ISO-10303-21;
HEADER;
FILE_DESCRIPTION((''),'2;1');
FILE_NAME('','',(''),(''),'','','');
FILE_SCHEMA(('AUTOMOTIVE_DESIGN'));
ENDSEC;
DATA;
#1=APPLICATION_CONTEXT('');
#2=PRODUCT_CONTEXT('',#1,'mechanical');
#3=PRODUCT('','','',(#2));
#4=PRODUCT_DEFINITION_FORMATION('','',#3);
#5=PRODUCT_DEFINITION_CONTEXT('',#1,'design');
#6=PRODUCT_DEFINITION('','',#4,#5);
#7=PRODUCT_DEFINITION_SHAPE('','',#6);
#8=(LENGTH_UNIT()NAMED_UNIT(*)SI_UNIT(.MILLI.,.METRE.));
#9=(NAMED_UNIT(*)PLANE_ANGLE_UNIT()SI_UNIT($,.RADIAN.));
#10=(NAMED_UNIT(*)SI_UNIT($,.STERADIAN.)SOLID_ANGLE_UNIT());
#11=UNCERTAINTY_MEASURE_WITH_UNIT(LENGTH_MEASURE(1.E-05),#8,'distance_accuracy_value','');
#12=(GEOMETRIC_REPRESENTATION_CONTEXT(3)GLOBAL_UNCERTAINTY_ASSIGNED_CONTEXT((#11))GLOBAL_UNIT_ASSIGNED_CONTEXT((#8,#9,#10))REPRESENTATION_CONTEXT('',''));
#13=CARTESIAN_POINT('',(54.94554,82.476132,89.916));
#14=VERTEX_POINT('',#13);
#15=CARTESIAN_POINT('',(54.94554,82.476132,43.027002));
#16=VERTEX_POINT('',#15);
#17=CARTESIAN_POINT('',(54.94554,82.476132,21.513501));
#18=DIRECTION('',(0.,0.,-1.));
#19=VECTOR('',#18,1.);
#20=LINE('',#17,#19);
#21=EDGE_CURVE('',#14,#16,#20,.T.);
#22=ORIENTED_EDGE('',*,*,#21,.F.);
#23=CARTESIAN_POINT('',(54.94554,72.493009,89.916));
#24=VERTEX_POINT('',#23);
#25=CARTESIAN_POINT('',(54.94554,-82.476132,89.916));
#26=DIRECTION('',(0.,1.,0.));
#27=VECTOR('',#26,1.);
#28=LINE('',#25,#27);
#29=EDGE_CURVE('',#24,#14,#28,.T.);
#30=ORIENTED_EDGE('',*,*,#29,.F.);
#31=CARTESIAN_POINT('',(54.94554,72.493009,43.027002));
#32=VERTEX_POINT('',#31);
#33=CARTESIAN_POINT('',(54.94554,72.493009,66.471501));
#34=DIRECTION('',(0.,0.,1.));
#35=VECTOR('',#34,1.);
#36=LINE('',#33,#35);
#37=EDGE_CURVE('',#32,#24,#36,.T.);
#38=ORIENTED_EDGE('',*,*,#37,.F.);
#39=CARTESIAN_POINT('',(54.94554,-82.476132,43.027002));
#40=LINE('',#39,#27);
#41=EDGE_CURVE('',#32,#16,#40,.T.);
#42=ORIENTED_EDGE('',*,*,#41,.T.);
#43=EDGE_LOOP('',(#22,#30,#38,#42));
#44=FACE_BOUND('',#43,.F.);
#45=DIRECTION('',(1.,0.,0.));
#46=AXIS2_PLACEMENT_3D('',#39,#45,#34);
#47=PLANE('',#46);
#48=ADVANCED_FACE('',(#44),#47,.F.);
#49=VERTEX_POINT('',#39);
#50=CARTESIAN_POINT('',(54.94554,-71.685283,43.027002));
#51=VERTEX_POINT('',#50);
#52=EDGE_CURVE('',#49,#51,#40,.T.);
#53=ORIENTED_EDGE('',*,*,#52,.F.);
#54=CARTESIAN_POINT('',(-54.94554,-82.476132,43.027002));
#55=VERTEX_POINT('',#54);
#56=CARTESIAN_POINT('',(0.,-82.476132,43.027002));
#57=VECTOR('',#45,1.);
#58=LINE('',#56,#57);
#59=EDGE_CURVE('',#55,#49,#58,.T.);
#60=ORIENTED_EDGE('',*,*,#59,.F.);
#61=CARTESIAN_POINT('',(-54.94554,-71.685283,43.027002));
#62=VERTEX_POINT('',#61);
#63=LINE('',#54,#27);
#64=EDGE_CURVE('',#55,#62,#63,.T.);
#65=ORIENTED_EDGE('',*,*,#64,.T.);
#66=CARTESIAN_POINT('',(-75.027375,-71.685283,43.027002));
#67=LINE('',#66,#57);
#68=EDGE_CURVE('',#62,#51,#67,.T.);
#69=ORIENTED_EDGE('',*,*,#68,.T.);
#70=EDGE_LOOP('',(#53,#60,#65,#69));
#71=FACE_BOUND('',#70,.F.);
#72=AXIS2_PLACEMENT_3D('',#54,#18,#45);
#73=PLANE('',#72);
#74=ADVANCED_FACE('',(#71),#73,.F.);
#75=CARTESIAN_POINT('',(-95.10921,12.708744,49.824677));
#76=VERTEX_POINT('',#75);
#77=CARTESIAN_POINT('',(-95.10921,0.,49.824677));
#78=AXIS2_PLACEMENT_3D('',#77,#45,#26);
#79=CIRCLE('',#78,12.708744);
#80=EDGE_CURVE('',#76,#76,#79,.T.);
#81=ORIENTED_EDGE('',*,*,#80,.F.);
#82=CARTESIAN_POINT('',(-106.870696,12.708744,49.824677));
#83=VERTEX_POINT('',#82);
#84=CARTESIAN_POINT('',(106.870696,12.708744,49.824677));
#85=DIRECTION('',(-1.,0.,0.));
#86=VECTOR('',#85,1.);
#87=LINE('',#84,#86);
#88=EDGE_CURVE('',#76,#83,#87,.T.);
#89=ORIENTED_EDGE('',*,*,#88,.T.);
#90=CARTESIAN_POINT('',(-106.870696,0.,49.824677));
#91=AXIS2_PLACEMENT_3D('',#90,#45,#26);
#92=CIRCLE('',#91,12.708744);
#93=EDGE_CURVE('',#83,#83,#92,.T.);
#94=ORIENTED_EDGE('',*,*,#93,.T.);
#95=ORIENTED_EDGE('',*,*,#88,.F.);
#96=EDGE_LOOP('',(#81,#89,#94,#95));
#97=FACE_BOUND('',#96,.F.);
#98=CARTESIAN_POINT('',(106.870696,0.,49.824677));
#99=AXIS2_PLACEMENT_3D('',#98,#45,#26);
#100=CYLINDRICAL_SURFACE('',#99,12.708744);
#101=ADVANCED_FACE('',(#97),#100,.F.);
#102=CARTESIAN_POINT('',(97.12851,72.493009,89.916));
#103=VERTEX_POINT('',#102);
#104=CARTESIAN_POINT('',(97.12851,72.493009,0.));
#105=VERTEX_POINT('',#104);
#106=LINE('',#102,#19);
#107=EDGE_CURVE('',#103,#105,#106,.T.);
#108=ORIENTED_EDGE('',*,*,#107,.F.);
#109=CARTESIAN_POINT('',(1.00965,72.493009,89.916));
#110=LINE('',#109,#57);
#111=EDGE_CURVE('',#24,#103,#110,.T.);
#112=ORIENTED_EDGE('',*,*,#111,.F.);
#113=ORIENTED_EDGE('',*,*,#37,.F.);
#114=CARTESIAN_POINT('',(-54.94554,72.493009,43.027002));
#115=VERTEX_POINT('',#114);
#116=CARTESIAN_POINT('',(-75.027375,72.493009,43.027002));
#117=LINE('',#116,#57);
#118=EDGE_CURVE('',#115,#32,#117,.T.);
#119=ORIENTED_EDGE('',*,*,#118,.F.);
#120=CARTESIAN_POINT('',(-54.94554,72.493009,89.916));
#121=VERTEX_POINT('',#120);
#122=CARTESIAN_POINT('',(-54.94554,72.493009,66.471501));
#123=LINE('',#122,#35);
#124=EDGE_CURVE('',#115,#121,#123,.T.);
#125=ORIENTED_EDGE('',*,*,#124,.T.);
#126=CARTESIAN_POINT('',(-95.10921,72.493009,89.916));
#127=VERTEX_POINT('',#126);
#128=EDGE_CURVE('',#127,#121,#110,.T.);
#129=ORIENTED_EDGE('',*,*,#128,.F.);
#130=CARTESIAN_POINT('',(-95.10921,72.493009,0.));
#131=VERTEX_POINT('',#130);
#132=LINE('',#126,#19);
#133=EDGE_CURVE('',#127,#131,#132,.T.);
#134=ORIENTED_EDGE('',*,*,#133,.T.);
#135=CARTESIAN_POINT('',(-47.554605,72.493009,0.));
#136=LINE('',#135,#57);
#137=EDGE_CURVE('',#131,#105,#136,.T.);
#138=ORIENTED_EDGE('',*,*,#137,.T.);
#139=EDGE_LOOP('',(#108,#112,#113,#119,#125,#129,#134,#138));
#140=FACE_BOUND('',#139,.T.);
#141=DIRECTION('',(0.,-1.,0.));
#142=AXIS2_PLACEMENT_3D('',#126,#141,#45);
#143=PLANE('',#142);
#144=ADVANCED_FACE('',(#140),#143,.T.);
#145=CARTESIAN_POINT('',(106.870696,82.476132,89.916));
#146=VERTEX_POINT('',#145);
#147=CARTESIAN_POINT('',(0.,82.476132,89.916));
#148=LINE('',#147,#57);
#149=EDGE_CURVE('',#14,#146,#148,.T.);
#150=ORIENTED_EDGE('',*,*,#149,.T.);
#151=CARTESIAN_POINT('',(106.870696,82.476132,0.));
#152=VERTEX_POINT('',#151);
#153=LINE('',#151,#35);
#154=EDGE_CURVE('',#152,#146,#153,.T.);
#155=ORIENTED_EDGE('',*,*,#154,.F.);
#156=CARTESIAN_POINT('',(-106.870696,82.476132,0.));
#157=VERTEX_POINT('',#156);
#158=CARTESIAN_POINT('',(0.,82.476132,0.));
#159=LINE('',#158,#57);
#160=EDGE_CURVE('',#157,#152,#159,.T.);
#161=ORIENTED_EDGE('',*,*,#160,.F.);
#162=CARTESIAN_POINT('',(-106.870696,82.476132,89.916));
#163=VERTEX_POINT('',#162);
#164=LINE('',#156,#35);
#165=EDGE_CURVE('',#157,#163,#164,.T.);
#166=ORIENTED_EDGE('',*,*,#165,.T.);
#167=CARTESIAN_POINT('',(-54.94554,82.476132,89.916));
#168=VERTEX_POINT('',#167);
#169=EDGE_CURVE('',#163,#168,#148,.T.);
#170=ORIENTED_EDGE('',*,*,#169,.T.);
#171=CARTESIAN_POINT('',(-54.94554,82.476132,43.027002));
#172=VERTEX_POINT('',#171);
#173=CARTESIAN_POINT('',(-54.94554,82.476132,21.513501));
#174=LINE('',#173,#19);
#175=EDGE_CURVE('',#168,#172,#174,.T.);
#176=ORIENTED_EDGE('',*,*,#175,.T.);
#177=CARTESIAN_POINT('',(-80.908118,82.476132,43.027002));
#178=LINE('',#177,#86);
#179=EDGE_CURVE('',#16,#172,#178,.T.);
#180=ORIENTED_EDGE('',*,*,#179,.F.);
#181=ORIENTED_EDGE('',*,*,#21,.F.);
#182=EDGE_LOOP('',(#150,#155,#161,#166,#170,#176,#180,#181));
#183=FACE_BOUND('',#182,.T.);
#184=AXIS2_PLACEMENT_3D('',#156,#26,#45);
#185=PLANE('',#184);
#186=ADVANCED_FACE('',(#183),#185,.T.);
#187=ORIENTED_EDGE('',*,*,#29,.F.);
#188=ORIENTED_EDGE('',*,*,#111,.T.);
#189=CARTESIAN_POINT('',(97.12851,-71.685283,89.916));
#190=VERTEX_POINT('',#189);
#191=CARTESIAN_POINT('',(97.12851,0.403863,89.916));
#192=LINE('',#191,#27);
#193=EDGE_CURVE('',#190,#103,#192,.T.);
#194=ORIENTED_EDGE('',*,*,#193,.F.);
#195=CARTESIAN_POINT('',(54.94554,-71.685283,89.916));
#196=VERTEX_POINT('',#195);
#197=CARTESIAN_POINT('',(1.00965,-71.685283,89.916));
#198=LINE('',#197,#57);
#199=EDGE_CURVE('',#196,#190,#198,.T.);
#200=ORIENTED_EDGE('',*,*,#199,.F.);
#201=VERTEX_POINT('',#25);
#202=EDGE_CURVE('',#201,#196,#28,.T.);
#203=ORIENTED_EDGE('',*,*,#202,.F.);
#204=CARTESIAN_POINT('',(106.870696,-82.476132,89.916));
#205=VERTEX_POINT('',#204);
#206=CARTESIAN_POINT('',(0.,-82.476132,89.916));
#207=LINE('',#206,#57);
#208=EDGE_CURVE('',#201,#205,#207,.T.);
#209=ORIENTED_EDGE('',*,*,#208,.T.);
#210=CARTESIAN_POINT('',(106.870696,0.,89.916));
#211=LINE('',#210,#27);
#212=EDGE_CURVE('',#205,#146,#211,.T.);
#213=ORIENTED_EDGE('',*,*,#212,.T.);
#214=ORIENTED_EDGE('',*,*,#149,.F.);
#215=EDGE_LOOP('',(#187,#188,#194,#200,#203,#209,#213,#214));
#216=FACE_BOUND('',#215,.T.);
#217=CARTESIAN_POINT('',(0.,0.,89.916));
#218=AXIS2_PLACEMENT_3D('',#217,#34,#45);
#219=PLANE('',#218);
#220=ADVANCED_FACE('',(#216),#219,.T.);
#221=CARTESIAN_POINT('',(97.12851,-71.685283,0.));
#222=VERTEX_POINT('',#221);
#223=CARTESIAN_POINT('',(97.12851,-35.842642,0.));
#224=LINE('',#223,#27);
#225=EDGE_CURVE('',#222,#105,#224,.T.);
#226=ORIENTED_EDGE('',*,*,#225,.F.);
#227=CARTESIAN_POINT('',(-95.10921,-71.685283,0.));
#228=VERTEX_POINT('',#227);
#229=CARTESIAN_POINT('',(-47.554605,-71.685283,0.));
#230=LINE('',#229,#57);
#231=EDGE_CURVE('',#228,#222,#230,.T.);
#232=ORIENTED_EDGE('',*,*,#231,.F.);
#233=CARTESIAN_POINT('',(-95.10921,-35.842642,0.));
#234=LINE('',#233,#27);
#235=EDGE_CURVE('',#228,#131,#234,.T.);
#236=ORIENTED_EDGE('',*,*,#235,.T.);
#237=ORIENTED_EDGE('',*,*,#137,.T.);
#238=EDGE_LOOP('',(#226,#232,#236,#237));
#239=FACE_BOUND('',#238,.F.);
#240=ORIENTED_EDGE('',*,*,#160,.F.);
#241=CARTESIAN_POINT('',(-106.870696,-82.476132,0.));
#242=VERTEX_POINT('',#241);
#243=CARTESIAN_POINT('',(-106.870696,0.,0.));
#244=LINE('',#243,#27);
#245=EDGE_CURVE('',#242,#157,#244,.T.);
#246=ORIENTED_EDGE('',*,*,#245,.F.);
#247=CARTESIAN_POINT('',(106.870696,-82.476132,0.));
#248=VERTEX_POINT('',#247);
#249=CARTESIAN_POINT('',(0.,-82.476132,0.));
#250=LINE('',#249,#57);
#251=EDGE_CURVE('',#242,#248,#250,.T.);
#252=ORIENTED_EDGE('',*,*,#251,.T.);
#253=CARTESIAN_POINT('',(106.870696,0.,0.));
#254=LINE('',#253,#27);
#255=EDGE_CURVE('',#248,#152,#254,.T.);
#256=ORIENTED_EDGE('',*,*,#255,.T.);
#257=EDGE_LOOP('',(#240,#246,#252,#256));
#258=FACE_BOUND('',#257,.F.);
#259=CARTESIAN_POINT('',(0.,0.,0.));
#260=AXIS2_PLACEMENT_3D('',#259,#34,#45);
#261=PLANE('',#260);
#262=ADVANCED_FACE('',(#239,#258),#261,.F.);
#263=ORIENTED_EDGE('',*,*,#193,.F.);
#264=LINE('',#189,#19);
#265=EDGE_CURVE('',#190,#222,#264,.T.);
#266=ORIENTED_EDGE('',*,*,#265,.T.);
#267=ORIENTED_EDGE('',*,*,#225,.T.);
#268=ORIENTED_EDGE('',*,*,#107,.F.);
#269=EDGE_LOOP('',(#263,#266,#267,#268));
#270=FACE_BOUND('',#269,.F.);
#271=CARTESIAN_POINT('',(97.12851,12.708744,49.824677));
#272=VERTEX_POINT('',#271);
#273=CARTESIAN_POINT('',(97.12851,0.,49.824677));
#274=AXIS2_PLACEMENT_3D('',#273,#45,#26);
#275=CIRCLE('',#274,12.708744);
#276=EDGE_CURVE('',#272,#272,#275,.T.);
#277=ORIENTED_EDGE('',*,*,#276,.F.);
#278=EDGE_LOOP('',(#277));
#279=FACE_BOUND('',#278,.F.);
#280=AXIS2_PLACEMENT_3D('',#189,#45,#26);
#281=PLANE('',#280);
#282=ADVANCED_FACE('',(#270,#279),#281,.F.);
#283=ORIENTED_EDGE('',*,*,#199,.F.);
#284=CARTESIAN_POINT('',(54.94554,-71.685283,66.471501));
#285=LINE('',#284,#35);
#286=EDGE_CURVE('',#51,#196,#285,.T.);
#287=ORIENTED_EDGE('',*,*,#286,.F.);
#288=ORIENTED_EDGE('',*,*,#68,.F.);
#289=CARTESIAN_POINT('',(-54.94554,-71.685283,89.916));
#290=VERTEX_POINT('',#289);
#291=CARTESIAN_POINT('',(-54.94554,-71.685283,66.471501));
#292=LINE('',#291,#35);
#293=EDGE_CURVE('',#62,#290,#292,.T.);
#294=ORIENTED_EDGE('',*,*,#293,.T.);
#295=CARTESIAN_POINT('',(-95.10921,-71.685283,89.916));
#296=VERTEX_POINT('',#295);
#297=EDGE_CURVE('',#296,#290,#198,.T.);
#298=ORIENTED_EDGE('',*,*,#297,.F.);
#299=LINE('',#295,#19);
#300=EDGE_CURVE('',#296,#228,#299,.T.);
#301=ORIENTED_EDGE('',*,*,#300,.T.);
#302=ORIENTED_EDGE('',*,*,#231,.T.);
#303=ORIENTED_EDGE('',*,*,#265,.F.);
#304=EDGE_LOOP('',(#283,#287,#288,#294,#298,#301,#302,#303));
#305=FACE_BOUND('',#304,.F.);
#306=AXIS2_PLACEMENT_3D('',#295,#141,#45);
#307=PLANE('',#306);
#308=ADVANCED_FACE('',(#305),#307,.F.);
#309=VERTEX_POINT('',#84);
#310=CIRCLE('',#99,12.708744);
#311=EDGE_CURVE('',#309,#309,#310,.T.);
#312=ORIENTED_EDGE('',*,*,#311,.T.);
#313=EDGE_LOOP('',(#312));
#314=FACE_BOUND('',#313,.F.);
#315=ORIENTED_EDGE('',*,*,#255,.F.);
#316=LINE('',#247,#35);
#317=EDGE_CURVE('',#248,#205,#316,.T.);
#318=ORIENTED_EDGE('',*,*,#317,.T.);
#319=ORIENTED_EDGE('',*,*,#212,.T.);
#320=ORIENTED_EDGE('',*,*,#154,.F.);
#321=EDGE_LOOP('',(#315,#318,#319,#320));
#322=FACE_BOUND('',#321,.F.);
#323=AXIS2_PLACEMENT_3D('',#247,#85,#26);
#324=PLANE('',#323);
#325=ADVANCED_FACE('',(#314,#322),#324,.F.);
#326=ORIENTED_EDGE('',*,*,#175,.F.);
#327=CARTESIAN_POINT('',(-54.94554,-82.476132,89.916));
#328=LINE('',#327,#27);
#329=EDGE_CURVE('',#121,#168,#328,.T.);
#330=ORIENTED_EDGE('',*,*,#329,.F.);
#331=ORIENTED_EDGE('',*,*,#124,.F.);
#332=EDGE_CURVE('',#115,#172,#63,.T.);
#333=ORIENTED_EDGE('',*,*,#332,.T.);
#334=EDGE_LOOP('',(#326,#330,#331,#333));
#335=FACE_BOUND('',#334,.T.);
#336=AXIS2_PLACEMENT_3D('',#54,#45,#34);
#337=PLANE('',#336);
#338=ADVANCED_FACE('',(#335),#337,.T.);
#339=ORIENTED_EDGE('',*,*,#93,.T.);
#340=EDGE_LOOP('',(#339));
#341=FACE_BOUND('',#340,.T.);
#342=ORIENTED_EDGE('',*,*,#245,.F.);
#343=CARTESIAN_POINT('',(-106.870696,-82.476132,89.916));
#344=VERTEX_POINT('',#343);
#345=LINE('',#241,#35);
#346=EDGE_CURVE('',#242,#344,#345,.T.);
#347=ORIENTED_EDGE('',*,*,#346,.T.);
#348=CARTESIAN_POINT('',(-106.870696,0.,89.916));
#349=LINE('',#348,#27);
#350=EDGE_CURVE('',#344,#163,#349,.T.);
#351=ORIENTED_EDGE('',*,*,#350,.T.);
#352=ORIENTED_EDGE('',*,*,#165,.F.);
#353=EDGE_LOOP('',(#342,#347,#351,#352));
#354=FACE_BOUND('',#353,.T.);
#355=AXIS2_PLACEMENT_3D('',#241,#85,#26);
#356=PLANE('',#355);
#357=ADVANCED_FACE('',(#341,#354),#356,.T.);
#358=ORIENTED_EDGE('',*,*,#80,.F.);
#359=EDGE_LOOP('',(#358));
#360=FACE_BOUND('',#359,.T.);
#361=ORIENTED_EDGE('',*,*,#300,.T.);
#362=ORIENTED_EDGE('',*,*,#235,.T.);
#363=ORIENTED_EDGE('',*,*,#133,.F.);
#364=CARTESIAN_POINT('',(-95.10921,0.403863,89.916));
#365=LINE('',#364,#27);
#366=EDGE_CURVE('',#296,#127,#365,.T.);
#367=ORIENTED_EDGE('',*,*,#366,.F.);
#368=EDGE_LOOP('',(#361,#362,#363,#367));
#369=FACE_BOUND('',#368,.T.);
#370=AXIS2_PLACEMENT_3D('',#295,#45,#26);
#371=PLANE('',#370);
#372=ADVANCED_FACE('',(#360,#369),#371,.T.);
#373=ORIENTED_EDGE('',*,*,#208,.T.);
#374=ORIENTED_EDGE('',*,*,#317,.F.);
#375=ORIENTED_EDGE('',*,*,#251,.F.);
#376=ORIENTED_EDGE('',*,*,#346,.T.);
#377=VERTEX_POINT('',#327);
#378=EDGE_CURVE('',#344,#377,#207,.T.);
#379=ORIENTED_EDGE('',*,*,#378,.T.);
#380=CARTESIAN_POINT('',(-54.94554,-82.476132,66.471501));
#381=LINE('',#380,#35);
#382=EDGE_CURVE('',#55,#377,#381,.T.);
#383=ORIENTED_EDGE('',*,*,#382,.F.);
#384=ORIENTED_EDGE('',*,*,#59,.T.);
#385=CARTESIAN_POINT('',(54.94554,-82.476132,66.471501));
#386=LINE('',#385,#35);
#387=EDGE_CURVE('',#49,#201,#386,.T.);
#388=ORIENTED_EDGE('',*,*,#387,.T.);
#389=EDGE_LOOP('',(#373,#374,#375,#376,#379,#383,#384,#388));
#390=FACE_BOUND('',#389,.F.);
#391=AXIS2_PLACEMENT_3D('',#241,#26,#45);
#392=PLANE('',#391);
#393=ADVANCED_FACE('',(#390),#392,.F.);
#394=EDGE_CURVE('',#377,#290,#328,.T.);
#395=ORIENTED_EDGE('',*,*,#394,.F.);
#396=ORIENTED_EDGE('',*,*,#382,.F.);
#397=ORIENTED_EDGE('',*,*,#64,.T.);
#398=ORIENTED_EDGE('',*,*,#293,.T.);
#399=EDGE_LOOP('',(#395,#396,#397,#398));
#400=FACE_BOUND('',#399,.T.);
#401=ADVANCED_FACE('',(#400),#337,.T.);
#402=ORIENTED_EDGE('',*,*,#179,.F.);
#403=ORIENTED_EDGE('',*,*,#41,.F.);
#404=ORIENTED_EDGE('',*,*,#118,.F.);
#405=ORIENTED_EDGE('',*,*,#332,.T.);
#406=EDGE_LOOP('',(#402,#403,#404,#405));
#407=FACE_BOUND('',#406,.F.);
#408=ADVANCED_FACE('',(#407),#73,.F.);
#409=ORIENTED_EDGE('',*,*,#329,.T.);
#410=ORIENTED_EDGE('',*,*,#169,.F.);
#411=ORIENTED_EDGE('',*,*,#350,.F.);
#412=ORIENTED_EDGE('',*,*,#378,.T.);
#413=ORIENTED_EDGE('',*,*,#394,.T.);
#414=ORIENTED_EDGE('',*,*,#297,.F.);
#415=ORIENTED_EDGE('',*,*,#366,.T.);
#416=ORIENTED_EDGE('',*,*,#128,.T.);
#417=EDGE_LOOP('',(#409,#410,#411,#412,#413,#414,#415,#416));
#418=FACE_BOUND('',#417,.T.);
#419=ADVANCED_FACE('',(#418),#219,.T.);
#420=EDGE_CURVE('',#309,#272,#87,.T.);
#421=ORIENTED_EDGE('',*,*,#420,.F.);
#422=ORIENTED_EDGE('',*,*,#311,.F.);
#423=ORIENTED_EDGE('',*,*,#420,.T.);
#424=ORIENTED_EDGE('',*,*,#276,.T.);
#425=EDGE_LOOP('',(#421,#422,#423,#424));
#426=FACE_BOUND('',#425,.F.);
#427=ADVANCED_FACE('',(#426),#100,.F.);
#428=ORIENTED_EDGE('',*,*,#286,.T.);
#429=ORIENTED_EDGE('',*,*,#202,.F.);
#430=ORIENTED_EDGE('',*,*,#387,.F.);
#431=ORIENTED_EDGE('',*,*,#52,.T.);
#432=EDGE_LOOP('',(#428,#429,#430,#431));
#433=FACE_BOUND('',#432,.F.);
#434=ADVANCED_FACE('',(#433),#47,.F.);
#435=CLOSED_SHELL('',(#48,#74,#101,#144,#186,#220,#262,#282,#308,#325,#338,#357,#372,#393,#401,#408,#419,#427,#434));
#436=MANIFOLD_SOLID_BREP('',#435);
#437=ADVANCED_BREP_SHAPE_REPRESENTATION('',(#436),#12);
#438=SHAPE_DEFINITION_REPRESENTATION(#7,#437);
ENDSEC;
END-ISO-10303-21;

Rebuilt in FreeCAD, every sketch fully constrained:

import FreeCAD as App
import Part
import Sketcher
from FreeCAD import Vector
Q = App.Units.Quantity

doc = App.newDocument("Part")
body = doc.addObject("PartDesign::Body", "Body")

sketch1 = body.newObject("Sketcher::SketchObject", "Sketch")
sketch1.AttachmentSupport = (doc.getObject("XY_Plane"), [""])
sketch1.MapMode = "FlatFace"
sketch1.addGeometry([
    Part.LineSegment(Vector(-107, 82, 0), Vector(-107, -82, 0)),
    Part.LineSegment(Vector(-107, -82, 0), Vector(107, -82, 0)),
    Part.LineSegment(Vector(107, -82, 0), Vector(107, 82, 0)),
    Part.LineSegment(Vector(107, 82, 0), Vector(-107, 82, 0)),
], False)
sketch1.addConstraint([
    Sketcher.Constraint("Coincident", 0, 2, 1, 1),
    Sketcher.Constraint("Coincident", 1, 2, 2, 1),
    Sketcher.Constraint("Coincident", 2, 2, 3, 1),
    Sketcher.Constraint("Coincident", 3, 2, 0, 1),
    Sketcher.Constraint("Vertical", 0),
    Sketcher.Constraint("Horizontal", 1),
    Sketcher.Constraint("Vertical", 2),
    Sketcher.Constraint("Horizontal", 3),
    Sketcher.Constraint("Symmetric", 0, 2, 2, 2, -1, 1),
    Sketcher.Constraint("DistanceX", 1, 1, 1, 2, 213.741392),
    Sketcher.Constraint("DistanceY", 0, 2, 0, 1, 164.952264),
])
pad1 = body.newObject("PartDesign::Pad", "Pad")
pad1.Profile = sketch1
pad1.Length = Q("3.54 in")

sketch2 = body.newObject("Sketcher::SketchObject", "Sketch001")
sketch2.AttachmentSupport = (doc.getObject("XY_Plane"), [""])
sketch2.MapMode = "FlatFace"
sketch2.AttachmentOffset = App.Placement(Vector(0, 0, 3.54 * 25.4), App.Rotation())
sketch2.addGeometry([
    Part.LineSegment(Vector(-95, 72, 0), Vector(-95, -72, 0)),
    Part.LineSegment(Vector(-95, -72, 0), Vector(97, -72, 0)),
    Part.LineSegment(Vector(97, -72, 0), Vector(97, 72, 0)),
    Part.LineSegment(Vector(97, 72, 0), Vector(-95, 72, 0)),
], False)
sketch2.addConstraint([
    Sketcher.Constraint("Coincident", 0, 2, 1, 1),
    Sketcher.Constraint("Coincident", 1, 2, 2, 1),
    Sketcher.Constraint("Coincident", 2, 2, 3, 1),
    Sketcher.Constraint("Coincident", 3, 2, 0, 1),
    Sketcher.Constraint("Vertical", 0),
    Sketcher.Constraint("Horizontal", 1),
    Sketcher.Constraint("Vertical", 2),
    Sketcher.Constraint("Horizontal", 3),
    Sketcher.Constraint("DistanceX", 1, 1, 1, 2, 192.237719),
    Sketcher.Constraint("DistanceY", 0, 2, 0, 1, 144.178293),
    Sketcher.Constraint("DistanceX", 0, 2, -1, 1, 95.10921),
    Sketcher.Constraint("DistanceY", -1, 1, 2, 2, 72.493009),
])
pocket1 = body.newObject("PartDesign::Pocket", "Pocket")
pocket1.Profile = sketch2
pocket1.Length = Q("5.42 in")

sketch3 = body.newObject("Sketcher::SketchObject", "Sketch002")
sketch3.AttachmentSupport = (doc.getObject("XZ_Plane"), [""])
sketch3.MapMode = "FlatFace"
sketch3.AttachmentOffset = App.Placement(Vector(0, 0, 82.476132), App.Rotation())
sketch3.addGeometry([
    Part.LineSegment(Vector(-55, 90, 0), Vector(-55, 43, 0)),
    Part.LineSegment(Vector(-55, 43, 0), Vector(55, 43, 0)),
    Part.LineSegment(Vector(55, 43, 0), Vector(55, 90, 0)),
    Part.LineSegment(Vector(55, 90, 0), Vector(-55, 90, 0)),
], False)
sketch3.addConstraint([
    Sketcher.Constraint("Coincident", 0, 2, 1, 1),
    Sketcher.Constraint("Coincident", 1, 2, 2, 1),
    Sketcher.Constraint("Coincident", 2, 2, 3, 1),
    Sketcher.Constraint("Coincident", 3, 2, 0, 1),
    Sketcher.Constraint("Vertical", 0),
    Sketcher.Constraint("Horizontal", 1),
    Sketcher.Constraint("Vertical", 2),
    Sketcher.Constraint("Horizontal", 3),
    Sketcher.Constraint("DistanceY", -1, 1, 2, 2, Q("3.54 in")),
    Sketcher.Constraint("DistanceX", 1, 1, 1, 2, 109.89108),
    Sketcher.Constraint("DistanceY", 0, 2, 0, 1, 46.888998),
    Sketcher.Constraint("DistanceX", 0, 2, -1, 1, 54.94554),
])
pocket2 = body.newObject("PartDesign::Pocket", "Pocket001")
pocket2.Profile = sketch3
pocket2.Length = Q("7.49 in")

sketch4 = body.newObject("Sketcher::SketchObject", "Sketch003")
sketch4.AttachmentSupport = (doc.getObject("YZ_Plane"), [""])
sketch4.MapMode = "FlatFace"
sketch4.AttachmentOffset = App.Placement(Vector(0, 0, 106.870696), App.Rotation())
sketch4.addGeometry(Part.Circle(Vector(0, 50, 0), Vector(0, 0, 1), 13), False)
sketch4.addConstraint([
    Sketcher.Constraint("PointOnObject", 0, 3, -2),
    Sketcher.Constraint("Diameter", 0, 25.417488),
    Sketcher.Constraint("DistanceY", -1, 1, 0, 3, 49.824677),
])
pocket3 = body.newObject("PartDesign::Pocket", "Pocket002")
pocket3.Profile = sketch4
pocket3.Length = Q("11.78 in")

doc.recompute()
